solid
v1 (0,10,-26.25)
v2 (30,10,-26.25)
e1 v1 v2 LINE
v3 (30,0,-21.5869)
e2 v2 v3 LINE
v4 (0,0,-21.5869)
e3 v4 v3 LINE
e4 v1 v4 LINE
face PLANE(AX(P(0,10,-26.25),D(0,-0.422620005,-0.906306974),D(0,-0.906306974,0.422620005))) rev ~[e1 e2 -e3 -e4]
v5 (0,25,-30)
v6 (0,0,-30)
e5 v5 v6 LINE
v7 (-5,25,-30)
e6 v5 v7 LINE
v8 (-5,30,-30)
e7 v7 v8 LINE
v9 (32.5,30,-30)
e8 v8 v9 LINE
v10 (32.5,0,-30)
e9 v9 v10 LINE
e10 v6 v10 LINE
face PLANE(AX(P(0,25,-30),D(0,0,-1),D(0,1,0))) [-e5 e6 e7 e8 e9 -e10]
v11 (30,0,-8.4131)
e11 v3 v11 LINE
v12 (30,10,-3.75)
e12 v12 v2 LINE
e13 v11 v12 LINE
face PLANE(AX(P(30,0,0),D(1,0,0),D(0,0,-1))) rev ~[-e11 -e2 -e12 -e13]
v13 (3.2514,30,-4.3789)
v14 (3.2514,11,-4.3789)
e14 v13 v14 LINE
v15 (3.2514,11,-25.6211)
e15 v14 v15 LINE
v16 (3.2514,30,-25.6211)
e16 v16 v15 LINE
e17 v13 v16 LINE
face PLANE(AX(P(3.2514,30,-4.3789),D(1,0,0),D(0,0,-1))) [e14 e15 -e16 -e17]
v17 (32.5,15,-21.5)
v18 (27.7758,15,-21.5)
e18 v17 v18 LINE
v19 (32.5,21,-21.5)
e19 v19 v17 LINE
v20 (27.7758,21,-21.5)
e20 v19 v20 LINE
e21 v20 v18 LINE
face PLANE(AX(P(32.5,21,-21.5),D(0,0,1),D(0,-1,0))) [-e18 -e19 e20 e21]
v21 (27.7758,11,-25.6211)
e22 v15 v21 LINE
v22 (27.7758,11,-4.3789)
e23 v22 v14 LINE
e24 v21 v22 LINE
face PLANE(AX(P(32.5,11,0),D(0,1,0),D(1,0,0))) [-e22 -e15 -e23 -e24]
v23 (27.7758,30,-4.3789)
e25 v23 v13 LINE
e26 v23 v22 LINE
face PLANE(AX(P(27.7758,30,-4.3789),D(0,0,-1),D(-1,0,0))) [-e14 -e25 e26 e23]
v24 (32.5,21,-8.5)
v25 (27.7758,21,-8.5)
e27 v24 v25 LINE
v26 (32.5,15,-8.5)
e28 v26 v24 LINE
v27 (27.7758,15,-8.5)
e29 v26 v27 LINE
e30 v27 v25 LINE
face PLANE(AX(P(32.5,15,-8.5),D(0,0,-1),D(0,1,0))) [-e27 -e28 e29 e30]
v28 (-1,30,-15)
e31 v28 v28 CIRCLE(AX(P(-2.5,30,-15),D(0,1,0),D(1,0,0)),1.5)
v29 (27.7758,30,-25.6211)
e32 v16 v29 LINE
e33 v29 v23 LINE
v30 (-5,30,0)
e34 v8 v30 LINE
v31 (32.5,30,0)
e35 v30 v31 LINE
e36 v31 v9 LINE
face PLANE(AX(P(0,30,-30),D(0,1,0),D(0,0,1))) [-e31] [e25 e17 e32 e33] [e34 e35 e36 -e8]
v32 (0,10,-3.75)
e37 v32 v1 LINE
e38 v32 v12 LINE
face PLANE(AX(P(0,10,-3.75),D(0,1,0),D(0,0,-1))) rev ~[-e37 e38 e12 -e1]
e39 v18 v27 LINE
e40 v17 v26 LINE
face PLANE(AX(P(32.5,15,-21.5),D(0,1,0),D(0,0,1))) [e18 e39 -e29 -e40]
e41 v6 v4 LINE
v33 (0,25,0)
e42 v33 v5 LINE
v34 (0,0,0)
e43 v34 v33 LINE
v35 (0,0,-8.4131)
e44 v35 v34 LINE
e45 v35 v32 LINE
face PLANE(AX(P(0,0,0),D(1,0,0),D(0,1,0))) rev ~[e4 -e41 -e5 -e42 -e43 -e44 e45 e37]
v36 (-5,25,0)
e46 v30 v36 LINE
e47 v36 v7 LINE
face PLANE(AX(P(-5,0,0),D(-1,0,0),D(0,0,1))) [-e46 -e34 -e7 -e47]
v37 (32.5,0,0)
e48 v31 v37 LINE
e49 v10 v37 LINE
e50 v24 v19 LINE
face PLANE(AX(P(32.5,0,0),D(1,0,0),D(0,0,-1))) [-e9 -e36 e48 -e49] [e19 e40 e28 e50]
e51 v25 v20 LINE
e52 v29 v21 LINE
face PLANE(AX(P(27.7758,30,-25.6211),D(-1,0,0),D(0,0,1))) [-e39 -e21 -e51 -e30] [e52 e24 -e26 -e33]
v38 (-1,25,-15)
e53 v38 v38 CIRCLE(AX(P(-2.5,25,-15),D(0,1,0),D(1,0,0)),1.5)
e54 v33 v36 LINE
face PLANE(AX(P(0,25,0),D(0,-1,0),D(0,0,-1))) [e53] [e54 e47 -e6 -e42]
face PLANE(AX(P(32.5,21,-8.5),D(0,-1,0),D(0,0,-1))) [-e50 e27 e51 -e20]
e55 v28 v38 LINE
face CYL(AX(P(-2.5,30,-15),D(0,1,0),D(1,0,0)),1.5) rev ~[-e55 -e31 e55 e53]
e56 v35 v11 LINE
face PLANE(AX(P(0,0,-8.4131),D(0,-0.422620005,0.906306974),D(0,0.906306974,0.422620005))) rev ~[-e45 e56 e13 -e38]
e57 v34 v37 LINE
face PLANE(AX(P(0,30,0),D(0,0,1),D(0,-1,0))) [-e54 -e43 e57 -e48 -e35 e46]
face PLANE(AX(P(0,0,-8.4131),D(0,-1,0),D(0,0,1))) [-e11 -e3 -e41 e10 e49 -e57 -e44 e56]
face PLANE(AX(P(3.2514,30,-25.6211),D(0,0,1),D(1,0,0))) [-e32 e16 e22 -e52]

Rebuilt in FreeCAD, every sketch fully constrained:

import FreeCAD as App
import Part
import Sketcher

V = App.Vector
Q = App.Units.Quantity


def add_polygon(sketch, points):
    """Adds a closed chain of lines whose ends are joined by coincident constraints."""
    first, n = sketch.GeometryCount, len(points)
    for a, b in zip(points, points[1:] + points[:1]):
        sketch.addGeometry(Part.LineSegment(App.Vector(*a, 0), App.Vector(*b, 0)), False)
    for i in range(n):
        sketch.addConstraint(Sketcher.Constraint("Coincident", first + i, 2, first + (i + 1) % n, 1))

doc = App.newDocument("Part")
body = doc.addObject("PartDesign::Body", "Body")

# Sketch on YZ plane
sketch1 = body.newObject("Sketcher::SketchObject", "Sketch")
sketch1.AttachmentSupport = (doc.getObject("YZ_Plane"), [""])
sketch1.MapMode = "FlatFace"
add_polygon(sketch1, [(30, 0), (0, 0), (0, -8), (10, -4), (10, -26), (0, -22), (0, -30), (30, -30)])  # lines 0-7
sketch1.addConstraint(Sketcher.Constraint("Horizontal", 0))
sketch1.addConstraint(Sketcher.Constraint("Vertical", 1))
sketch1.addConstraint(Sketcher.Constraint("Vertical", 3))
sketch1.addConstraint(Sketcher.Constraint("Vertical", 5))
sketch1.addConstraint(Sketcher.Constraint("Horizontal", 6))
sketch1.addConstraint(Sketcher.Constraint("Vertical", 7))
sketch1.addConstraint(Sketcher.Constraint("Coincident", 0, 2, -1, 1))
sketch1.addConstraint(Sketcher.Constraint("PointOnObject", 4, 2, -2))
sketch1.addConstraint(Sketcher.Constraint("Equal", 1, 5))
sketch1.addConstraint(Sketcher.Constraint("Equal", 6, 7))
sketch1.addConstraint(Sketcher.Constraint("Equal", 2, 4))
sketch1.addConstraint(Sketcher.Constraint("DistanceX", 0, 2, 0, 1, Q("30 mm")))
sketch1.addConstraint(Sketcher.Constraint("DistanceY", 3, 2, 3, 1, Q("22.5 mm")))
sketch1.addConstraint(Sketcher.Constraint("DistanceX", -1, 1, 2, 2, Q("10 mm")))
sketch1.addConstraint(Sketcher.Constraint("Angle", 2, Q("25 deg")))
pad1 = body.newObject("PartDesign::Pad", "Pad")
pad1.Profile = sketch1
pad1.Length = 30

# Sketch on YZ plane
sketch2 = body.newObject("Sketcher::SketchObject", "Sketch001")
sketch2.AttachmentSupport = (doc.getObject("YZ_Plane"), [""])
sketch2.MapMode = "FlatFace"
sketch2.AttachmentOffset = App.Placement(V(0, 0, 30), App.Rotation())
add_polygon(sketch2, [(30, -30), (30, 0), (0, 0), (0, -30)])  # lines 0-3
sketch2.addConstraint(Sketcher.Constraint("Vertical", 0))
sketch2.addConstraint(Sketcher.Constraint("Horizontal", 1))
sketch2.addConstraint(Sketcher.Constraint("Vertical", 2))
sketch2.addConstraint(Sketcher.Constraint("Horizontal", 3))
sketch2.addConstraint(Sketcher.Constraint("Coincident", 1, 2, -1, 1))
sketch2.addConstraint(Sketcher.Constraint("Equal", 3, 0))
sketch2.addConstraint(Sketcher.Constraint("DistanceX", 1, 2, 1, 1, Q("30 mm")))
pad2 = body.newObject("PartDesign::Pad", "Pad001")
pad2.Profile = sketch2
pad2.Length = 2.5

# Sketch on YZ plane
sketch3 = body.newObject("Sketcher::SketchObject", "Sketch002")
sketch3.AttachmentSupport = (doc.getObject("YZ_Plane"), [""])
sketch3.MapMode = "FlatFace"
add_polygon(sketch3, [(30, -30), (25, -30), (25, 0), (30, 0)])  # lines 0-3
sketch3.addConstraint(Sketcher.Constraint("Horizontal", 0))
sketch3.addConstraint(Sketcher.Constraint("Vertical", 1))
sketch3.addConstraint(Sketcher.Constraint("Horizontal", 2))
sketch3.addConstraint(Sketcher.Constraint("Vertical", 3))
sketch3.addConstraint(Sketcher.Constraint("PointOnObject", 1, 2, -1))
sketch3.addConstraint(Sketcher.Constraint("DistanceX", 0, 2, 0, 1, Q("5 mm")))
sketch3.addConstraint(Sketcher.Constraint("DistanceY", 1, 1, 1, 2, Q("30 mm")))
sketch3.addConstraint(Sketcher.Constraint("DistanceX", -1, 1, 0, 2, Q("25 mm")))
pad3 = body.newObject("PartDesign::Pad", "Pad002")
pad3.Profile = sketch3
pad3.Length = 5
pad3.Reversed = True

# Sketch on XZ plane
sketch4 = body.newObject("Sketcher::SketchObject", "Sketch003")
sketch4.AttachmentSupport = (doc.getObject("XZ_Plane"), [""])
sketch4.MapMode = "FlatFace"
sketch4.AttachmentOffset = App.Placement(V(0, 0, -30), App.Rotation())
sketch4.addGeometry(Part.Circle(V(-2.5, -15, 0), V(0, 0, 1), 1.5), False)
sketch4.addConstraint(Sketcher.Constraint("Diameter", 0, Q("3 mm")))
sketch4.addConstraint(Sketcher.Constraint("DistanceY", 0, 3, -1, 1, Q("15 mm")))
sketch4.addConstraint(Sketcher.Constraint("DistanceX", 0, 3, -1, 1, Q("2.5 mm")))
pocket1 = body.newObject("PartDesign::Pocket", "Pocket")
pocket1.Profile = sketch4
pocket1.Type = "ThroughAll"
pocket1.Reversed = True

# Sketch on XZ plane
sketch5 = body.newObject("Sketcher::SketchObject", "Sketch004")
sketch5.AttachmentSupport = (doc.getObject("XZ_Plane"), [""])
sketch5.MapMode = "FlatFace"
sketch5.AttachmentOffset = App.Placement(V(0, 0, -30), App.Rotation())
add_polygon(sketch5, [(28, -26), (3, -26), (3, -4), (28, -4)])  # lines 0-3
sketch5.addConstraint(Sketcher.Constraint("Horizontal", 0))
sketch5.addConstraint(Sketcher.Constraint("Vertical", 1))
sketch5.addConstraint(Sketcher.Constraint("Horizontal", 2))
sketch5.addConstraint(Sketcher.Constraint("Vertical", 3))
sketch5.addConstraint(Sketcher.Constraint("DistanceX", 0, 2, 0, 1, Q("24.5244 mm")))
sketch5.addConstraint(Sketcher.Constraint("DistanceY", 1, 1, 1, 2, Q("21.2422 mm")))
sketch5.addConstraint(Sketcher.Constraint("DistanceY", 0, 2, -1, 1, Q("25.621 mm")))
sketch5.addConstraint(Sketcher.Constraint("DistanceX", -1, 1, 0, 2, Q("3.2514 mm")))
pocket2 = body.newObject("PartDesign::Pocket", "Pocket001")
pocket2.Profile = sketch5
pocket2.Length = 19
pocket2.Reversed = True

# Sketch on YZ plane
sketch6 = body.newObject("Sketcher::SketchObject", "Sketch005")
sketch6.AttachmentSupport = (doc.getObject("YZ_Plane"), [""])
sketch6.MapMode = "FlatFace"
sketch6.AttachmentOffset = App.Placement(V(0, 0, 32.5), App.Rotation())
add_polygon(sketch6, [(21, -22), (21, -8), (15, -8), (15, -22)])  # lines 0-3
sketch6.addConstraint(Sketcher.Constraint("Vertical", 0))
sketch6.addConstraint(Sketcher.Constraint("Horizontal", 1))
sketch6.addConstraint(Sketcher.Constraint("Vertical", 2))
sketch6.addConstraint(Sketcher.Constraint("Horizontal", 3))
sketch6.addConstraint(Sketcher.Constraint("DistanceX", 1, 2, 1, 1, Q("6 mm")))
sketch6.addConstraint(Sketcher.Constraint("DistanceY", 0, 1, 0, 2, Q("13 mm")))
sketch6.addConstraint(Sketcher.Constraint("DistanceX", -1, 1, 0, 2, Q("21 mm")))
sketch6.addConstraint(Sketcher.Constraint("DistanceY", 0, 2, -1, 1, Q("8.5 mm")))
pocket3 = body.newObject("PartDesign::Pocket", "Pocket002")
pocket3.Profile = sketch6
pocket3.Type = "UpToFirst"

doc.recompute()
